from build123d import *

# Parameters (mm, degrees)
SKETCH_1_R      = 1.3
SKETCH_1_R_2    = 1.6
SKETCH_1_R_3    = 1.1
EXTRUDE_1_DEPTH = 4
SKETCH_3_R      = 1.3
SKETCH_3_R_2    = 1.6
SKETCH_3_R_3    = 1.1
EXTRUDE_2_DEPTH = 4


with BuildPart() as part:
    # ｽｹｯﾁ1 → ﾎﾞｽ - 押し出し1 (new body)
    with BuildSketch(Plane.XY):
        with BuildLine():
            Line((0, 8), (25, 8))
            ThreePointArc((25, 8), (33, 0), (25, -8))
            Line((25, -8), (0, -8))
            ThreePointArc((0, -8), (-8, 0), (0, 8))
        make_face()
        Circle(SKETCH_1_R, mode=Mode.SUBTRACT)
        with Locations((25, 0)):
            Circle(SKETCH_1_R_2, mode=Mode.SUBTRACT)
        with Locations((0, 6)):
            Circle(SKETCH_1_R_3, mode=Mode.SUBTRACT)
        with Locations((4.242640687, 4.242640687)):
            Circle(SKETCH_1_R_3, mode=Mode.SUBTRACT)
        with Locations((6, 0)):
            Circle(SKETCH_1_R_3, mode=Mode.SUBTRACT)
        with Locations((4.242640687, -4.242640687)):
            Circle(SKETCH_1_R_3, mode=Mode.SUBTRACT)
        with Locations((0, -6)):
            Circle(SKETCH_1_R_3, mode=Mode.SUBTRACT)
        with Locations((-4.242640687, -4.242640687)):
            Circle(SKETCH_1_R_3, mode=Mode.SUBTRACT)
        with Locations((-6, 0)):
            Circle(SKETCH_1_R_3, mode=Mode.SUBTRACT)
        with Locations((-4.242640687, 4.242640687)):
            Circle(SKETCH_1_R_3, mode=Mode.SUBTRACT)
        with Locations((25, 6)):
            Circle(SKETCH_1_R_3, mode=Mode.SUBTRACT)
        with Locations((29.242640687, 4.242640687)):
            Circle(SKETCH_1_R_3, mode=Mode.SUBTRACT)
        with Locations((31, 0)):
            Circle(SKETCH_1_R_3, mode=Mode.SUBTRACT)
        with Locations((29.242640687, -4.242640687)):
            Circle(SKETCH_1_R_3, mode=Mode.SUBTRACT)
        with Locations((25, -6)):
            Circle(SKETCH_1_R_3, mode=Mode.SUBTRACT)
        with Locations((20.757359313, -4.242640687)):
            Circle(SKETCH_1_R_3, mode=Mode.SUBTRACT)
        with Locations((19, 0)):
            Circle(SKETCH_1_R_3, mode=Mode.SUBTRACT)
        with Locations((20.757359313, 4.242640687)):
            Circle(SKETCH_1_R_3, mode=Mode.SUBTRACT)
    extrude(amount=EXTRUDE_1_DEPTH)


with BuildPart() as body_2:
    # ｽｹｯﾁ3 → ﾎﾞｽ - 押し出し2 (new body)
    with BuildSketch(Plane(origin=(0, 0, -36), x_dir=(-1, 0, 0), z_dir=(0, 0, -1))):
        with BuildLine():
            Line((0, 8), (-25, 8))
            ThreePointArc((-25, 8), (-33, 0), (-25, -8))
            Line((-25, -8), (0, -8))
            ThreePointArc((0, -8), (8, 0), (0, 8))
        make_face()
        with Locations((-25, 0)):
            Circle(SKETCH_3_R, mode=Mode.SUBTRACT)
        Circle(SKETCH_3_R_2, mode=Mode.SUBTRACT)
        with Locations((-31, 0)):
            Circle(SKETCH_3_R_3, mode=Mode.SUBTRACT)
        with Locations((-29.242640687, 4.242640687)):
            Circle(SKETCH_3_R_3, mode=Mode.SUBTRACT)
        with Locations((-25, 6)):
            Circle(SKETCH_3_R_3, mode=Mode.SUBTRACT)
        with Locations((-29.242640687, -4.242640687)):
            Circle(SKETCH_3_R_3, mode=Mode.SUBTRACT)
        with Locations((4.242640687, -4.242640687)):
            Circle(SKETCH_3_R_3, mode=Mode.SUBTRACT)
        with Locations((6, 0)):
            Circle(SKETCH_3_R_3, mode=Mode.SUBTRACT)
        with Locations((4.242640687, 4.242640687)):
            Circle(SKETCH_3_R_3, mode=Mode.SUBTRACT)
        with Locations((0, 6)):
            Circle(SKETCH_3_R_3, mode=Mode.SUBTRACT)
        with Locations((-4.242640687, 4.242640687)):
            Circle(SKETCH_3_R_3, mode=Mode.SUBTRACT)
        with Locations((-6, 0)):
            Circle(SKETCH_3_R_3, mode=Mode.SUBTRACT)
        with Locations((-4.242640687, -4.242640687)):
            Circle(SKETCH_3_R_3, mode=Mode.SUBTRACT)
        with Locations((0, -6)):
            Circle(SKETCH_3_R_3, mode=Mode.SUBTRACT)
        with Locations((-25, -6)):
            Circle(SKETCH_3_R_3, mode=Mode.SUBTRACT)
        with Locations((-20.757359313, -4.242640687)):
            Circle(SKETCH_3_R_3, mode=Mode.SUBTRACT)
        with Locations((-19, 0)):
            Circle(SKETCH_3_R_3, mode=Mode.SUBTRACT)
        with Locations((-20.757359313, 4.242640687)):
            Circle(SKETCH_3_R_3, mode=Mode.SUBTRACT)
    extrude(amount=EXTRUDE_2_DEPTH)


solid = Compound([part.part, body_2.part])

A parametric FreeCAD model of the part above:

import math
import FreeCAD as App
import Part
import Sketcher

V = App.Vector
Q = App.Units.Quantity

doc = App.newDocument("Part")
body = doc.addObject("PartDesign::Body", "Body")

# Sketch on XY plane
sketch1 = doc.addObject("Sketcher::SketchObject", "Sketch")
body.addObject(sketch1)
sketch1.AttachmentSupport = (doc.XY_Plane, [""])
sketch1.MapMode = "FlatFace"
sketch1.addGeometry(Part.LineSegment(V(25, 8, 0), V(0, 8, 0)), False)
sketch1.addGeometry(Part.ArcOfCircle(Part.Circle(V(0, 0, 0), V(0, 0, 1), 8), math.radians(90), math.radians(270)), False)
sketch1.addGeometry(Part.LineSegment(V(0, -8, 0), V(25, -8, 0)), False)
sketch1.addGeometry(Part.ArcOfCircle(Part.Circle(V(25, 0, 0), V(0, 0, 1), 8), math.radians(-90), math.radians(90)), False)
sketch1.addGeometry(Part.Circle(V(25, -6, 0), V(0, 0, 1), 1.1), False)
sketch1.addGeometry(Part.Circle(V(29.242641, -4.242641, 0), V(0, 0, 1), 1.1), False)
sketch1.addGeometry(Part.Circle(V(20.757359, -4.242641, 0), V(0, 0, 1), 1.1), False)
sketch1.addGeometry(Part.Circle(V(4.242641, -4.242641, 0), V(0, 0, 1), 1.1), False)
sketch1.addGeometry(Part.Circle(V(0, -6, 0), V(0, 0, 1), 1.1), False)
sketch1.addGeometry(Part.Circle(V(-4.242641, -4.242641, 0), V(0, 0, 1), 1.1), False)
sketch1.addGeometry(Part.Circle(V(31, 0, 0), V(0, 0, 1), 1.1), False)
sketch1.addGeometry(Part.Circle(V(25, 0, 0), V(0, 0, 1), 1.6), False)
sketch1.addGeometry(Part.Circle(V(19, 0, 0), V(0, 0, 1), 1.1), False)
sketch1.addGeometry(Part.Circle(V(29.242641, 4.242641, 0), V(0, 0, 1), 1.1), False)
sketch1.addGeometry(Part.Circle(V(25, 6, 0), V(0, 0, 1), 1.1), False)
sketch1.addGeometry(Part.Circle(V(20.757359, 4.242641, 0), V(0, 0, 1), 1.1), False)
sketch1.addGeometry(Part.Circle(V(6, 0, 0), V(0, 0, 1), 1.1), False)
sketch1.addGeometry(Part.Circle(V(0, 0, 0), V(0, 0, 1), 1.3), False)
sketch1.addGeometry(Part.Circle(V(-6, 0, 0), V(0, 0, 1), 1.1), False)
sketch1.addGeometry(Part.Circle(V(4.242641, 4.242641, 0), V(0, 0, 1), 1.1), False)
sketch1.addGeometry(Part.Circle(V(-4.242641, 4.242641, 0), V(0, 0, 1), 1.1), False)
sketch1.addGeometry(Part.Circle(V(0, 6, 0), V(0, 0, 1), 1.1), False)
sketch1.addConstraint(Sketcher.Constraint("Tangent", 0, 2, 1, 1))
sketch1.addConstraint(Sketcher.Constraint("Tangent", 1, 2, 2, 1))
sketch1.addConstraint(Sketcher.Constraint("Tangent", 2, 2, 3, 1))
sketch1.addConstraint(Sketcher.Constraint("Tangent", 3, 2, 0, 1))
sketch1.addConstraint(Sketcher.Constraint("Horizontal", 0))
sketch1.addConstraint(Sketcher.Constraint("Horizontal", 2))
sketch1.addConstraint(Sketcher.Constraint("Coincident", 1, 3, -1, 1))
sketch1.addConstraint(Sketcher.Constraint("Coincident", 17, 3, -1, 1))
sketch1.addConstraint(Sketcher.Constraint("Coincident", 11, 3, 3, 3))
sketch1.addConstraint(Sketcher.Constraint("Equal", 4, 5))
sketch1.addConstraint(Sketcher.Constraint("Equal", 5, 6))
sketch1.addConstraint(Sketcher.Constraint("Equal", 6, 7))
sketch1.addConstraint(Sketcher.Constraint("Equal", 7, 8))
sketch1.addConstraint(Sketcher.Constraint("Equal", 8, 9))
sketch1.addConstraint(Sketcher.Constraint("Equal", 9, 10))
sketch1.addConstraint(Sketcher.Constraint("Equal", 10, 12))
sketch1.addConstraint(Sketcher.Constraint("Equal", 12, 13))
sketch1.addConstraint(Sketcher.Constraint("Equal", 13, 14))
sketch1.addConstraint(Sketcher.Constraint("Equal", 14, 15))
sketch1.addConstraint(Sketcher.Constraint("Equal", 15, 16))
sketch1.addConstraint(Sketcher.Constraint("Equal", 16, 18))
sketch1.addConstraint(Sketcher.Constraint("Equal", 18, 19))
sketch1.addConstraint(Sketcher.Constraint("Equal", 19, 20))
sketch1.addConstraint(Sketcher.Constraint("Equal", 20, 21))
sketch1.addConstraint(Sketcher.Constraint("Symmetric", 16, 3, 18, 3, -1, 1))
sketch1.addConstraint(Sketcher.Constraint("Symmetric", 9, 3, 19, 3, -1, 1))
sketch1.addConstraint(Sketcher.Constraint("Symmetric", 7, 3, 20, 3, -1, 1))
sketch1.addConstraint(Sketcher.Constraint("Symmetric", 8, 3, 21, 3, -1, 1))
sketch1.addConstraint(Sketcher.Constraint("Symmetric", 7, 3, 9, 3, -2))
sketch1.addConstraint(Sketcher.Constraint("Symmetric", 5, 3, 13, 3, -1))
sketch1.addConstraint(Sketcher.Constraint("Symmetric", 4, 3, 14, 3, -1))
sketch1.addConstraint(Sketcher.Constraint("Symmetric", 6, 3, 15, 3, -1))
sketch1.addConstraint(Sketcher.Constraint("PointOnObject", 8, 3, -2))
sketch1.addConstraint(Sketcher.Constraint("PointOnObject", 10, 3, -1))
sketch1.addConstraint(Sketcher.Constraint("PointOnObject", 12, 3, -1))
sketch1.addConstraint(Sketcher.Constraint("PointOnObject", 16, 3, -1))
sketch1.addConstraint(Sketcher.Constraint("Horizontal", 5, 3, 6, 3))
sketch1.addConstraint(Sketcher.Constraint("Horizontal", 6, 3, 7, 3))
sketch1.addConstraint(Sketcher.Constraint("Horizontal", 4, 3, 8, 3))
sketch1.addConstraint(Sketcher.Constraint("Vertical", 3, 3, 4, 3))
sketch1.addConstraint(Sketcher.Constraint("Radius", 1, Q("8 mm")))
sketch1.addConstraint(Sketcher.Constraint("Diameter", 4, Q("2.2 mm")))
sketch1.addConstraint(Sketcher.Constraint("Diameter", 11, Q("3.2 mm")))
sketch1.addConstraint(Sketcher.Constraint("Diameter", 17, Q("2.6 mm")))
sketch1.addConstraint(Sketcher.Constraint("DistanceX", 0, 2, 0, 1, Q("25 mm")))
sketch1.addConstraint(Sketcher.Constraint("DistanceY", 4, 3, -1, 1, Q("6 mm")))
sketch1.addConstraint(Sketcher.Constraint("DistanceX", -1, 1, 10, 3, Q("31 mm")))
sketch1.addConstraint(Sketcher.Constraint("DistanceX", -1, 1, 12, 3, Q("19 mm")))
sketch1.addConstraint(Sketcher.Constraint("DistanceX", -1, 1, 16, 3, Q("6 mm")))
sketch1.addConstraint(Sketcher.Constraint("DistanceX", 7, 3, 5, 3, Q("25 mm")))
sketch1.addConstraint(Sketcher.Constraint("DistanceX", 9, 3, 6, 3, Q("25 mm")))
sketch1.addConstraint(Sketcher.Constraint("DistanceX", -1, 1, 5, 3, Q("29.242641 mm")))
sketch1.addConstraint(Sketcher.Constraint("DistanceY", 5, 3, -1, 1, Q("4.242641 mm")))
pad1 = doc.addObject("PartDesign::Pad", "Pad")
body.addObject(pad1)
pad1.Profile = sketch1
pad1.Length = 4
body2 = doc.addObject("PartDesign::Body", "Body001")

# Sketch on XY plane
sketch2 = doc.addObject("Sketcher::SketchObject", "Sketch001")
body2.addObject(sketch2)
sketch2.AttachmentSupport = (doc.getObject("XY_Plane001"), [""])
sketch2.MapMode = "FlatFace"
sketch2.AttachmentOffset = App.Placement(V(0, 0, -36), App.Rotation())
sketch2.addGeometry(Part.LineSegment(V(0, 8, 0), V(25, 8, 0)), False)
sketch2.addGeometry(Part.ArcOfCircle(Part.Circle(V(25, 0, 0), V(0, 0, 1), 8), math.radians(-90), math.radians(90)), False)
sketch2.addGeometry(Part.LineSegment(V(25, -8, 0), V(0, -8, 0)), False)
sketch2.addGeometry(Part.ArcOfCircle(Part.Circle(V(0, 0, 0), V(0, 0, 1), 8), math.radians(90), math.radians(270)), False)
sketch2.addGeometry(Part.Circle(V(25, -6, 0), V(0, 0, 1), 1.1), False)
sketch2.addGeometry(Part.Circle(V(29.242641, -4.242641, 0), V(0, 0, 1), 1.1), False)
sketch2.addGeometry(Part.Circle(V(20.757359, -4.242641, 0), V(0, 0, 1), 1.1), False)
sketch2.addGeometry(Part.Circle(V(4.242641, -4.242641, 0), V(0, 0, 1), 1.1), False)
sketch2.addGeometry(Part.Circle(V(0, -6, 0), V(0, 0, 1), 1.1), False)
sketch2.addGeometry(Part.Circle(V(-4.242641, -4.242641, 0), V(0, 0, 1), 1.1), False)
sketch2.addGeometry(Part.Circle(V(31, 0, 0), V(0, 0, 1), 1.1), False)
sketch2.addGeometry(Part.Circle(V(25, 0, 0), V(0, 0, 1), 1.3), False)
sketch2.addGeometry(Part.Circle(V(19, 0, 0), V(0, 0, 1), 1.1), False)
sketch2.addGeometry(Part.Circle(V(29.242641, 4.242641, 0), V(0, 0, 1), 1.1), False)
sketch2.addGeometry(Part.Circle(V(25, 6, 0), V(0, 0, 1), 1.1), False)
sketch2.addGeometry(Part.Circle(V(20.757359, 4.242641, 0), V(0, 0, 1), 1.1), False)
sketch2.addGeometry(Part.Circle(V(6, 0, 0), V(0, 0, 1), 1.1), False)
sketch2.addGeometry(Part.Circle(V(0, 0, 0), V(0, 0, 1), 1.6), False)
sketch2.addGeometry(Part.Circle(V(-6, 0, 0), V(0, 0, 1), 1.1), False)
sketch2.addGeometry(Part.Circle(V(4.242641, 4.242641, 0), V(0, 0, 1), 1.1), False)
sketch2.addGeometry(Part.Circle(V(-4.242641, 4.242641, 0), V(0, 0, 1), 1.1), False)
sketch2.addGeometry(Part.Circle(V(0, 6, 0), V(0, 0, 1), 1.1), False)
sketch2.addConstraint(Sketcher.Constraint("Tangent", 0, 2, 1, 2))
sketch2.addConstraint(Sketcher.Constraint("Tangent", 1, 1, 2, 1))
sketch2.addConstraint(Sketcher.Constraint("Tangent", 2, 2, 3, 2))
sketch2.addConstraint(Sketcher.Constraint("Tangent", 3, 1, 0, 1))
sketch2.addConstraint(Sketcher.Constraint("Horizontal", 0))
sketch2.addConstraint(Sketcher.Constraint("Horizontal", 2))
sketch2.addConstraint(Sketcher.Constraint("Coincident", 3, 3, -1, 1))
sketch2.addConstraint(Sketcher.Constraint("Coincident", 17, 3, -1, 1))
sketch2.addConstraint(Sketcher.Constraint("Coincident", 11, 3, 1, 3))
sketch2.addConstraint(Sketcher.Constraint("Equal", 4, 5))
sketch2.addConstraint(Sketcher.Constraint("Equal", 5, 6))
sketch2.addConstraint(Sketcher.Constraint("Equal", 6, 7))
sketch2.addConstraint(Sketcher.Constraint("Equal", 7, 8))
sketch2.addConstraint(Sketcher.Constraint("Equal", 8, 9))
sketch2.addConstraint(Sketcher.Constraint("Equal", 9, 10))
sketch2.addConstraint(Sketcher.Constraint("Equal", 10, 12))
sketch2.addConstraint(Sketcher.Constraint("Equal", 12, 13))
sketch2.addConstraint(Sketcher.Constraint("Equal", 13, 14))
sketch2.addConstraint(Sketcher.Constraint("Equal", 14, 15))
sketch2.addConstraint(Sketcher.Constraint("Equal", 15, 16))
sketch2.addConstraint(Sketcher.Constraint("Equal", 16, 18))
sketch2.addConstraint(Sketcher.Constraint("Equal", 18, 19))
sketch2.addConstraint(Sketcher.Constraint("Equal", 19, 20))
sketch2.addConstraint(Sketcher.Constraint("Equal", 20, 21))
sketch2.addConstraint(Sketcher.Constraint("Symmetric", 16, 3, 18, 3, -1, 1))
sketch2.addConstraint(Sketcher.Constraint("Symmetric", 9, 3, 19, 3, -1, 1))
sketch2.addConstraint(Sketcher.Constraint("Symmetric", 7, 3, 20, 3, -1, 1))
sketch2.addConstraint(Sketcher.Constraint("Symmetric", 8, 3, 21, 3, -1, 1))
sketch2.addConstraint(Sketcher.Constraint("Symmetric", 7, 3, 9, 3, -2))
sketch2.addConstraint(Sketcher.Constraint("Symmetric", 5, 3, 13, 3, -1))
sketch2.addConstraint(Sketcher.Constraint("Symmetric", 4, 3, 14, 3, -1))
sketch2.addConstraint(Sketcher.Constraint("Symmetric", 6, 3, 15, 3, -1))
sketch2.addConstraint(Sketcher.Constraint("PointOnObject", 8, 3, -2))
sketch2.addConstraint(Sketcher.Constraint("PointOnObject", 10, 3, -1))
sketch2.addConstraint(Sketcher.Constraint("PointOnObject", 12, 3, -1))
sketch2.addConstraint(Sketcher.Constraint("PointOnObject", 16, 3, -1))
sketch2.addConstraint(Sketcher.Constraint("Horizontal", 5, 3, 6, 3))
sketch2.addConstraint(Sketcher.Constraint("Horizontal", 6, 3, 7, 3))
sketch2.addConstraint(Sketcher.Constraint("Horizontal", 4, 3, 8, 3))
sketch2.addConstraint(Sketcher.Constraint("Vertical", 1, 3, 4, 3))
sketch2.addConstraint(Sketcher.Constraint("Radius", 1, Q("8 mm")))
sketch2.addConstraint(Sketcher.Constraint("Diameter", 4, Q("2.2 mm")))
sketch2.addConstraint(Sketcher.Constraint("Diameter", 11, Q("2.6 mm")))
sketch2.addConstraint(Sketcher.Constraint("Diameter", 17, Q("3.2 mm")))
sketch2.addConstraint(Sketcher.Constraint("DistanceX", 0, 1, 0, 2, Q("25 mm")))
sketch2.addConstraint(Sketcher.Constraint("DistanceY", 4, 3, -1, 1, Q("6 mm")))
sketch2.addConstraint(Sketcher.Constraint("DistanceX", -1, 1, 10, 3, Q("31 mm")))
sketch2.addConstraint(Sketcher.Constraint("DistanceX", -1, 1, 12, 3, Q("19 mm")))
sketch2.addConstraint(Sketcher.Constraint("DistanceX", -1, 1, 16, 3, Q("6 mm")))
sketch2.addConstraint(Sketcher.Constraint("DistanceX", 7, 3, 5, 3, Q("25 mm")))
sketch2.addConstraint(Sketcher.Constraint("DistanceX", 9, 3, 6, 3, Q("25 mm")))
sketch2.addConstraint(Sketcher.Constraint("DistanceX", -1, 1, 5, 3, Q("29.242641 mm")))
sketch2.addConstraint(Sketcher.Constraint("DistanceY", 5, 3, -1, 1, Q("4.242641 mm")))
pad2 = doc.addObject("PartDesign::Pad", "Pad001")
body2.addObject(pad2)
pad2.Profile = sketch2
pad2.Length = 4
pad2.Reversed = True

doc.recompute()
